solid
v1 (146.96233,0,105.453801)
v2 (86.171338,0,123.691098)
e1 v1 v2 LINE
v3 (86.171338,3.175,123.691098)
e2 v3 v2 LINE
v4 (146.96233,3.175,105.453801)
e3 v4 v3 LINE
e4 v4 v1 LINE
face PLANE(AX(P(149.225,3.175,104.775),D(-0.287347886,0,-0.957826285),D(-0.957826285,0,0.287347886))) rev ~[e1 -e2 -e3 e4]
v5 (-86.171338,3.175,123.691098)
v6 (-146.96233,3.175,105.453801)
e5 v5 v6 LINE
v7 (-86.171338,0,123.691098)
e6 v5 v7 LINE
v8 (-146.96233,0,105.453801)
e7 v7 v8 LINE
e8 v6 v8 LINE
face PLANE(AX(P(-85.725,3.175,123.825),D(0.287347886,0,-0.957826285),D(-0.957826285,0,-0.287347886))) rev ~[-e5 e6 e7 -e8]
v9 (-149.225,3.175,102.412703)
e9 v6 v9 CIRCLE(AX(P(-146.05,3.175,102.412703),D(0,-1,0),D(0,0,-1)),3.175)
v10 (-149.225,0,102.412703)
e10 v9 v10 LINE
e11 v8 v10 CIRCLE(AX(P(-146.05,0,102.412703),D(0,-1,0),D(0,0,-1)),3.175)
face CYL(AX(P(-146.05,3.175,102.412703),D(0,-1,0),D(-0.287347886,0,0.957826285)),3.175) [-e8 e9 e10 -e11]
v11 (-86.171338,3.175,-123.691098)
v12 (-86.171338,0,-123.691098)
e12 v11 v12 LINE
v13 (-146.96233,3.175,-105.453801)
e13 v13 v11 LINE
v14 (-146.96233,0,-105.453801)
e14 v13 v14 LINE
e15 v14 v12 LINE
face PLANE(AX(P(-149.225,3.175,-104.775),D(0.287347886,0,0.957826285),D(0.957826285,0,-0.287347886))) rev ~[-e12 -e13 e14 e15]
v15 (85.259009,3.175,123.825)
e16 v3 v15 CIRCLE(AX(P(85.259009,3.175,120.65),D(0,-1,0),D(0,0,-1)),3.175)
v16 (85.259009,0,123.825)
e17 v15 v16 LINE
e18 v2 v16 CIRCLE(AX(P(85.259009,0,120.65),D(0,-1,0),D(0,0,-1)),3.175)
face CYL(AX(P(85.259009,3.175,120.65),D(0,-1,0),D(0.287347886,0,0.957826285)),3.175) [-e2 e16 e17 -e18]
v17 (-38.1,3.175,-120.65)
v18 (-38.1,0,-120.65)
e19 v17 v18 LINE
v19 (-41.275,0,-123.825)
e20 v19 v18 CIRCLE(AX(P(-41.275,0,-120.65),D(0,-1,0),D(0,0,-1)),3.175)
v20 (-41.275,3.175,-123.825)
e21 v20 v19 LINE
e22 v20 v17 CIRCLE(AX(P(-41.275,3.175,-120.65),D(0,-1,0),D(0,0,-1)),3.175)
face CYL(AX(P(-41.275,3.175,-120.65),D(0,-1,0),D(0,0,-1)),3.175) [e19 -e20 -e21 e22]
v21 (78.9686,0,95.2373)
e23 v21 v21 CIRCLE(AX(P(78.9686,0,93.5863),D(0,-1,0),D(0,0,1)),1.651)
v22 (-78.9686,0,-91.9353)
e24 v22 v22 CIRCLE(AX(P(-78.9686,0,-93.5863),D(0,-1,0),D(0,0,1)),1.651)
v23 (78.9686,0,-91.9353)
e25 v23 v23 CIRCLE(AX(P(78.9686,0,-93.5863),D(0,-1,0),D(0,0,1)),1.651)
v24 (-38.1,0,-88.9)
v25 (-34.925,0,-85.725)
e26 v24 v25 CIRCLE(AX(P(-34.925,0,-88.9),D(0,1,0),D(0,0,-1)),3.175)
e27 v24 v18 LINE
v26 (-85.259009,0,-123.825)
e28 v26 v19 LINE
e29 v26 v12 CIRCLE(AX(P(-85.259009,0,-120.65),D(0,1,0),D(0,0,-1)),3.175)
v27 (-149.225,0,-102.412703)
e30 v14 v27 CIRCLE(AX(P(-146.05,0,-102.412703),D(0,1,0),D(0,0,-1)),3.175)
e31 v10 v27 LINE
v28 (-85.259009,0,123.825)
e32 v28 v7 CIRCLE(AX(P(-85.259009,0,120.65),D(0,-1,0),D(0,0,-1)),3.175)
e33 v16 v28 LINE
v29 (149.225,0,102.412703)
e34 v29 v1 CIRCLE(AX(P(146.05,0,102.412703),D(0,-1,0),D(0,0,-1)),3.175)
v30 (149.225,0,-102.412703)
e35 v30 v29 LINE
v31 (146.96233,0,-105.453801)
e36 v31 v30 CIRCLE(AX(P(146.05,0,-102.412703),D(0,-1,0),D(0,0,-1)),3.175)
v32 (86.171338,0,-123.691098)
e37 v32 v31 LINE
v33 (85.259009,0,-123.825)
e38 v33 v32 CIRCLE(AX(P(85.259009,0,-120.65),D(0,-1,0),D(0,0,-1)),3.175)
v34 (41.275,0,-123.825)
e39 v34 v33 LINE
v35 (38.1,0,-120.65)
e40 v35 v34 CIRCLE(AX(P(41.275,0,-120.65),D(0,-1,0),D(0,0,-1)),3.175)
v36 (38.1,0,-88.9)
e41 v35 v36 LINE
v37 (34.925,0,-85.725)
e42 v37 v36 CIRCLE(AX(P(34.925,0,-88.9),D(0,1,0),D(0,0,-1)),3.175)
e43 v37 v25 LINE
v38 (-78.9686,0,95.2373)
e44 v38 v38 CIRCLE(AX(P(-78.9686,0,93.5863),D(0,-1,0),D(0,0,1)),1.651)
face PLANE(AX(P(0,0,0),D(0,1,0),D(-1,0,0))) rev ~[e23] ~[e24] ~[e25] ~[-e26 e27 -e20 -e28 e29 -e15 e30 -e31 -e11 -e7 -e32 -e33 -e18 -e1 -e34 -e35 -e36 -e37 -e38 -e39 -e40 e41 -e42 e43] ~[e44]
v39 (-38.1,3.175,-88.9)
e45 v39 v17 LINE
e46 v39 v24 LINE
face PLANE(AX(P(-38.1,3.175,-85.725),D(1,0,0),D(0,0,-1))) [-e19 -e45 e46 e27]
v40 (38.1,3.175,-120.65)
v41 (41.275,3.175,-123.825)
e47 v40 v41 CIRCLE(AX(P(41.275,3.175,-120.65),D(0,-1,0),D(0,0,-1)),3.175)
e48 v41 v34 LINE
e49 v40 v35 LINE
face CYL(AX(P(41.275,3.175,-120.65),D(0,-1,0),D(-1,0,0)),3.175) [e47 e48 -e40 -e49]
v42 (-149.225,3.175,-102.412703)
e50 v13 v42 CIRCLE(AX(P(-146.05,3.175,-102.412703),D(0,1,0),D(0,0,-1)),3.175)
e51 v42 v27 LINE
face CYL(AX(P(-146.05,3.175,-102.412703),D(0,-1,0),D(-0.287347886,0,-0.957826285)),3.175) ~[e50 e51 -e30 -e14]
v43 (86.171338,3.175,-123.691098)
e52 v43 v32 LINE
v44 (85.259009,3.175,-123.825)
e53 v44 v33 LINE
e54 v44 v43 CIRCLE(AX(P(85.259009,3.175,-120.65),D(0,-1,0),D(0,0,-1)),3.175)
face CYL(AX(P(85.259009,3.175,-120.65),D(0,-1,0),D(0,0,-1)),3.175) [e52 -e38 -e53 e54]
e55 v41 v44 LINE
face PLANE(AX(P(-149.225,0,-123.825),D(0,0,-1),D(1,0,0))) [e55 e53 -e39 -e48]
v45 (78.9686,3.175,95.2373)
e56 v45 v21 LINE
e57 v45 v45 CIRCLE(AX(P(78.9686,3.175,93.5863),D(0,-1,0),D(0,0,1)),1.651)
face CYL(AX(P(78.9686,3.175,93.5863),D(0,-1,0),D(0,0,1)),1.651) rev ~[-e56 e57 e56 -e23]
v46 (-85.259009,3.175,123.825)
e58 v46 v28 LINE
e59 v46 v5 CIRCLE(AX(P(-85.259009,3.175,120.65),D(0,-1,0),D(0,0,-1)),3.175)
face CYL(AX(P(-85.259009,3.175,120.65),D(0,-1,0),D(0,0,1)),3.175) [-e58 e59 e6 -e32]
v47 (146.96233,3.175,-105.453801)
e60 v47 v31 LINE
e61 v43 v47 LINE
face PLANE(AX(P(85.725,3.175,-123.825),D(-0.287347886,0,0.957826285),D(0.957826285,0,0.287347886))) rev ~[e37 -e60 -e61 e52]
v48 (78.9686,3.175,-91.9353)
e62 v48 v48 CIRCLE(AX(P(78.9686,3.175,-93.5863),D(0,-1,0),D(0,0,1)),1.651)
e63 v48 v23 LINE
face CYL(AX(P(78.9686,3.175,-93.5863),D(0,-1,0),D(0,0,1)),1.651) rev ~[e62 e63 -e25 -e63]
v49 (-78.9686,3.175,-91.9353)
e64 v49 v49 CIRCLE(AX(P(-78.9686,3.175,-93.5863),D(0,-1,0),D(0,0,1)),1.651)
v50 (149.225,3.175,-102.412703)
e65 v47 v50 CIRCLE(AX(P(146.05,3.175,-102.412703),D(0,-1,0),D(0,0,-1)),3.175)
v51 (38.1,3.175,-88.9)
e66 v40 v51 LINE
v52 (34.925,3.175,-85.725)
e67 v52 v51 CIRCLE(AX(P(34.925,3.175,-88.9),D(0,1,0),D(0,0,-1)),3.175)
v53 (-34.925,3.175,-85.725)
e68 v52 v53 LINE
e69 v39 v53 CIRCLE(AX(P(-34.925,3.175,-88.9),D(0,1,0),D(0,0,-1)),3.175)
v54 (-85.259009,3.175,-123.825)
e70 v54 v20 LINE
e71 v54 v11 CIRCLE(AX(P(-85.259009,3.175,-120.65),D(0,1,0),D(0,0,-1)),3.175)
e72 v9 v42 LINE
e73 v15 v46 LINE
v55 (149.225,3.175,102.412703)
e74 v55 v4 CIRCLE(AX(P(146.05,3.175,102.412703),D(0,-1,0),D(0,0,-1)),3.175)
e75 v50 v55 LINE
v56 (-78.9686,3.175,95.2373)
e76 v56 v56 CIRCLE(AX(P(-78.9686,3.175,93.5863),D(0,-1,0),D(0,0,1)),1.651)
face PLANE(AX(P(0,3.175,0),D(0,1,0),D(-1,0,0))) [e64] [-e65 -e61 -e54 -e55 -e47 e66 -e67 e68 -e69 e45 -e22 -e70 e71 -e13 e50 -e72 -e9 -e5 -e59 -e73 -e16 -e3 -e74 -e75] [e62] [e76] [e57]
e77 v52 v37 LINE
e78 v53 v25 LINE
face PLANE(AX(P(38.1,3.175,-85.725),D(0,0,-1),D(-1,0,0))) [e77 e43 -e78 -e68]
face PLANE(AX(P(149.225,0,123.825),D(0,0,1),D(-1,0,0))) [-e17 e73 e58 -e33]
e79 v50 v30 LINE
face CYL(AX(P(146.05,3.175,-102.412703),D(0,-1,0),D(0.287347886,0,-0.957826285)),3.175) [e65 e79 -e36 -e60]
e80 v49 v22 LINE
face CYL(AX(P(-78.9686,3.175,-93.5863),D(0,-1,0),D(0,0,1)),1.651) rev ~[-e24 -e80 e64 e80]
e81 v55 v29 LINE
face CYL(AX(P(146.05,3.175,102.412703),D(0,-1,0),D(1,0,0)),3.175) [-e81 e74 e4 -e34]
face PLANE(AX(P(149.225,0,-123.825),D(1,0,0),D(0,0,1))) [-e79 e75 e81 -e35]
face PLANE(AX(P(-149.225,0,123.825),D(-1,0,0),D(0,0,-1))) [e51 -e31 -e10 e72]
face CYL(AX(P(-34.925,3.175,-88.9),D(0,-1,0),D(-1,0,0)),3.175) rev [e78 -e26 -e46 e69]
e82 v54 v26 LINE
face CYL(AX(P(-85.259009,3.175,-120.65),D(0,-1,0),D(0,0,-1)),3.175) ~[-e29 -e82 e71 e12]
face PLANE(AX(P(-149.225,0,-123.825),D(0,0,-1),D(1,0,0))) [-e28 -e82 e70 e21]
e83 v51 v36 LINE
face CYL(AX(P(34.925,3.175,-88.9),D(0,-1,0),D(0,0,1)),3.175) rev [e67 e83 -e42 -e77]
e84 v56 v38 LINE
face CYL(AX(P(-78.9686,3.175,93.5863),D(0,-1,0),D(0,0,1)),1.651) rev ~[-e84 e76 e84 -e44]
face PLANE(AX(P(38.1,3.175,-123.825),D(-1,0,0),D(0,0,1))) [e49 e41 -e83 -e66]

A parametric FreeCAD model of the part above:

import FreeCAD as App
import Part
import Sketcher
from FreeCAD import Vector
Q = App.Units.Quantity


def edges_at(feature, points):
    """Names of the edges that pass closest to the given points."""
    edges = feature.Shape.Edges
    near = lambda p: min(range(len(edges)), key=lambda i: edges[i].distToShape(Part.Vertex(*p))[0])
    return sorted({f"Edge{near(p) + 1}" for p in points})

doc = App.newDocument("Part")
body = doc.addObject("PartDesign::Body", "Body")

sketch1 = body.newObject("Sketcher::SketchObject", "Sketch")
sketch1.AttachmentSupport = (doc.getObject("XZ_Plane"), [""])
sketch1.MapMode = "FlatFace"
sketch1.addGeometry(Part.LineSegment(Vector(149, -124, 0), Vector(-149, -124, 0)), False)
sketch1.addGeometry(Part.LineSegment(Vector(-149, -124, 0), Vector(-149, 124, 0)), False)
sketch1.addGeometry(Part.LineSegment(Vector(-149, 124, 0), Vector(149, 124, 0)), False)
sketch1.addGeometry(Part.LineSegment(Vector(149, 124, 0), Vector(149, -124, 0)), False)
sketch1.addConstraint(Sketcher.Constraint("Coincident", 0, 2, 1, 1))
sketch1.addConstraint(Sketcher.Constraint("Coincident", 1, 2, 2, 1))
sketch1.addConstraint(Sketcher.Constraint("Coincident", 2, 2, 3, 1))
sketch1.addConstraint(Sketcher.Constraint("Coincident", 3, 2, 0, 1))
sketch1.addConstraint(Sketcher.Constraint("Horizontal", 0))
sketch1.addConstraint(Sketcher.Constraint("Vertical", 1))
sketch1.addConstraint(Sketcher.Constraint("Horizontal", 2))
sketch1.addConstraint(Sketcher.Constraint("Vertical", 3))
sketch1.addConstraint(Sketcher.Constraint("Symmetric", 0, 2, 2, 2, -1, 1))
sketch1.addConstraint(Sketcher.Constraint("DistanceX", 0, 2, 0, 1, Q("11.75 in")))
sketch1.addConstraint(Sketcher.Constraint("DistanceY", 1, 1, 1, 2, Q("9.75 in")))
pad1 = body.newObject("PartDesign::Pad", "Pad")
pad1.Profile = sketch1
pad1.Length = Q("0.125 in")
pad1.Reversed = True

sketch2 = body.newObject("Sketcher::SketchObject", "Sketch001")
sketch2.AttachmentSupport = (doc.getObject("XZ_Plane"), [""])
sketch2.MapMode = "FlatFace"
sketch2.AttachmentOffset = App.Placement(Vector(0, 0, -0.125 * 25.4), App.Rotation())
sketch2.addGeometry(Part.LineSegment(Vector(149, -105, 0), Vector(149, -124, 0)), False)
sketch2.addGeometry(Part.LineSegment(Vector(149, -124, 0), Vector(86, -124, 0)), False)
sketch2.addGeometry(Part.LineSegment(Vector(86, -124, 0), Vector(149, -105, 0)), False)
sketch2.addGeometry(Part.LineSegment(Vector(-149, -105, 0), Vector(-86, -124, 0)), False)
sketch2.addGeometry(Part.LineSegment(Vector(-86, -124, 0), Vector(-149, -124, 0)), False)
sketch2.addGeometry(Part.LineSegment(Vector(-149, -124, 0), Vector(-149, -105, 0)), False)
sketch2.addGeometry(Part.LineSegment(Vector(149, 124, 0), Vector(149, 105, 0)), False)
sketch2.addGeometry(Part.LineSegment(Vector(149, 105, 0), Vector(86, 124, 0)), False)
sketch2.addGeometry(Part.LineSegment(Vector(86, 124, 0), Vector(149, 124, 0)), False)
sketch2.addGeometry(Part.LineSegment(Vector(-86, 124, 0), Vector(-149, 105, 0)), False)
sketch2.addGeometry(Part.LineSegment(Vector(-149, 105, 0), Vector(-149, 124, 0)), False)
sketch2.addGeometry(Part.LineSegment(Vector(-149, 124, 0), Vector(-86, 124, 0)), False)
sketch2.addConstraint(Sketcher.Constraint("Coincident", 0, 2, 1, 1))
sketch2.addConstraint(Sketcher.Constraint("Coincident", 1, 2, 2, 1))
sketch2.addConstraint(Sketcher.Constraint("Coincident", 2, 2, 0, 1))
sketch2.addConstraint(Sketcher.Constraint("Coincident", 3, 2, 4, 1))
sketch2.addConstraint(Sketcher.Constraint("Coincident", 4, 2, 5, 1))
sketch2.addConstraint(Sketcher.Constraint("Coincident", 5, 2, 3, 1))
sketch2.addConstraint(Sketcher.Constraint("Coincident", 6, 2, 7, 1))
sketch2.addConstraint(Sketcher.Constraint("Coincident", 7, 2, 8, 1))
sketch2.addConstraint(Sketcher.Constraint("Coincident", 8, 2, 6, 1))
sketch2.addConstraint(Sketcher.Constraint("Coincident", 9, 2, 10, 1))
sketch2.addConstraint(Sketcher.Constraint("Coincident", 10, 2, 11, 1))
sketch2.addConstraint(Sketcher.Constraint("Coincident", 11, 2, 9, 1))
sketch2.addConstraint(Sketcher.Constraint("Vertical", 0))
sketch2.addConstraint(Sketcher.Constraint("Horizontal", 1))
sketch2.addConstraint(Sketcher.Constraint("Horizontal", 4))
sketch2.addConstraint(Sketcher.Constraint("Vertical", 5))
sketch2.addConstraint(Sketcher.Constraint("Vertical", 6))
sketch2.addConstraint(Sketcher.Constraint("Horizontal", 8))
sketch2.addConstraint(Sketcher.Constraint("Vertical", 10))
sketch2.addConstraint(Sketcher.Constraint("Horizontal", 11))
sketch2.addConstraint(Sketcher.Constraint("Symmetric", 5, 2, 6, 2, -1, 1))
sketch2.addConstraint(Sketcher.Constraint("Symmetric", 3, 2, 7, 2, -1, 1))
sketch2.addConstraint(Sketcher.Constraint("Symmetric", 2, 2, 9, 2, -1, 1))
sketch2.addConstraint(Sketcher.Constraint("Symmetric", 1, 2, 11, 2, -1, 1))
sketch2.addConstraint(Sketcher.Constraint("Symmetric", 1, 2, 3, 2, -2))
sketch2.addConstraint(Sketcher.Constraint("Symmetric", 2, 2, 5, 2, -2))
sketch2.addConstraint(Sketcher.Constraint("DistanceX", 1, 2, 1, 1, Q("2.5 in")))
sketch2.addConstraint(Sketcher.Constraint("DistanceY", 0, 2, 0, 1, Q("0.75 in")))
sketch2.addConstraint(Sketcher.Constraint("DistanceY", 0, 2, 6, 2, Q("9 in")))
sketch2.addConstraint(Sketcher.Constraint("DistanceX", 3, 2, 1, 2, Q("6.75 in")))
pocket1 = body.newObject("PartDesign::Pocket", "Pocket")
pocket1.Profile = sketch2
pocket1.Length = Q("0.125 in")
pocket1.Reversed = True

sketch3 = body.newObject("Sketcher::SketchObject", "Sketch002")
sketch3.AttachmentSupport = (doc.getObject("XZ_Plane"), [""])
sketch3.MapMode = "FlatFace"
sketch3.AttachmentOffset = App.Placement(Vector(0, 0, -0.125 * 25.4), App.Rotation())
sketch3.addGeometry(Part.LineSegment(Vector(38, -86, 0), Vector(38, -124, 0)), False)
sketch3.addGeometry(Part.LineSegment(Vector(38, -124, 0), Vector(-38, -124, 0)), False)
sketch3.addGeometry(Part.LineSegment(Vector(-38, -124, 0), Vector(-38, -86, 0)), False)
sketch3.addGeometry(Part.LineSegment(Vector(-38, -86, 0), Vector(38, -86, 0)), False)
sketch3.addConstraint(Sketcher.Constraint("Coincident", 0, 2, 1, 1))
sketch3.addConstraint(Sketcher.Constraint("Coincident", 1, 2, 2, 1))
sketch3.addConstraint(Sketcher.Constraint("Coincident", 2, 2, 3, 1))
sketch3.addConstraint(Sketcher.Constraint("Coincident", 3, 2, 0, 1))
sketch3.addConstraint(Sketcher.Constraint("Vertical", 0))
sketch3.addConstraint(Sketcher.Constraint("Horizontal", 1))
sketch3.addConstraint(Sketcher.Constraint("Vertical", 2))
sketch3.addConstraint(Sketcher.Constraint("Horizontal", 3))
sketch3.addConstraint(Sketcher.Constraint("DistanceX", 1, 2, 1, 1, Q("3 in")))
sketch3.addConstraint(Sketcher.Constraint("DistanceY", 0, 2, 0, 1, Q("1.5 in")))
sketch3.addConstraint(Sketcher.Constraint("DistanceX", -1, 1, 0, 2, Q("1.5 in")))
sketch3.addConstraint(Sketcher.Constraint("DistanceY", 0, 2, -1, 1, Q("4.875 in")))
pocket2 = body.newObject("PartDesign::Pocket", "Pocket001")
pocket2.Profile = sketch3
pocket2.Length = Q("0.125 in")
pocket2.Reversed = True
doc.recompute()

fillet = body.newObject("PartDesign::Fillet", "Fillet")
fillet.Base = (pocket2, edges_at(pocket2, [
    (38.1, 1.587, -85.725),
    (-38.1, 1.587, -85.725),
    (38.1, 1.587, -123.825),
    (-38.1, 1.587, -123.825),
    (85.725, 1.587, -123.825),
    (-85.725, 1.587, -123.825),
    (-149.225, 1.587, -104.775),
    (149.225, 1.587, -104.775),
    (-149.225, 1.587, 104.775),
    (-85.725, 1.587, 123.825),
    (85.725, 1.587, 123.825),
    (149.225, 1.587, 104.775),
]))
fillet.Radius = Q("0.125 in")

sketch4 = body.newObject("Sketcher::SketchObject", "Sketch003")
sketch4.AttachmentSupport = (doc.getObject("XZ_Plane"), [""])
sketch4.MapMode = "FlatFace"
sketch4.AttachmentOffset = App.Placement(Vector(0, 0, -0.125 * 25.4), App.Rotation())
sketch4.addGeometry(Part.Circle(Vector(-79, -93.6, 0), Vector(0, 0, 1), 1.7), False)
sketch4.addGeometry(Part.Circle(Vector(-79, 93.6, 0), Vector(0, 0, 1), 1.7), False)
sketch4.addGeometry(Part.Circle(Vector(79, 93.6, 0), Vector(0, 0, 1), 1.7), False)
sketch4.addGeometry(Part.Circle(Vector(79, -93.6, 0), Vector(0, 0, 1), 1.7), False)
sketch4.addConstraint(Sketcher.Constraint("Equal", 0, 1))
sketch4.addConstraint(Sketcher.Constraint("Equal", 1, 2))
sketch4.addConstraint(Sketcher.Constraint("Equal", 2, 3))
sketch4.addConstraint(Sketcher.Constraint("Symmetric", 0, 3, 2, 3, -1, 1))
sketch4.addConstraint(Sketcher.Constraint("Symmetric", 1, 3, 3, 3, -1, 1))
sketch4.addConstraint(Sketcher.Constraint("Symmetric", 1, 3, 2, 3, -2))
sketch4.addConstraint(Sketcher.Constraint("Diameter", 0, Q("0.13 in")))
sketch4.addConstraint(Sketcher.Constraint("DistanceX", 0, 3, -1, 1, Q("3.109 in")))
sketch4.addConstraint(Sketcher.Constraint("DistanceY", 0, 3, 1, 3, Q("7.369 in")))
doc.recompute()
hole = body.newObject("PartDesign::Hole", "Hole")
hole.Profile = sketch4
hole.ThreadType = "None"
hole.Diameter = Q("0.13 in")
hole.DepthType = "ThroughAll"
hole.Reversed = True

doc.recompute()
